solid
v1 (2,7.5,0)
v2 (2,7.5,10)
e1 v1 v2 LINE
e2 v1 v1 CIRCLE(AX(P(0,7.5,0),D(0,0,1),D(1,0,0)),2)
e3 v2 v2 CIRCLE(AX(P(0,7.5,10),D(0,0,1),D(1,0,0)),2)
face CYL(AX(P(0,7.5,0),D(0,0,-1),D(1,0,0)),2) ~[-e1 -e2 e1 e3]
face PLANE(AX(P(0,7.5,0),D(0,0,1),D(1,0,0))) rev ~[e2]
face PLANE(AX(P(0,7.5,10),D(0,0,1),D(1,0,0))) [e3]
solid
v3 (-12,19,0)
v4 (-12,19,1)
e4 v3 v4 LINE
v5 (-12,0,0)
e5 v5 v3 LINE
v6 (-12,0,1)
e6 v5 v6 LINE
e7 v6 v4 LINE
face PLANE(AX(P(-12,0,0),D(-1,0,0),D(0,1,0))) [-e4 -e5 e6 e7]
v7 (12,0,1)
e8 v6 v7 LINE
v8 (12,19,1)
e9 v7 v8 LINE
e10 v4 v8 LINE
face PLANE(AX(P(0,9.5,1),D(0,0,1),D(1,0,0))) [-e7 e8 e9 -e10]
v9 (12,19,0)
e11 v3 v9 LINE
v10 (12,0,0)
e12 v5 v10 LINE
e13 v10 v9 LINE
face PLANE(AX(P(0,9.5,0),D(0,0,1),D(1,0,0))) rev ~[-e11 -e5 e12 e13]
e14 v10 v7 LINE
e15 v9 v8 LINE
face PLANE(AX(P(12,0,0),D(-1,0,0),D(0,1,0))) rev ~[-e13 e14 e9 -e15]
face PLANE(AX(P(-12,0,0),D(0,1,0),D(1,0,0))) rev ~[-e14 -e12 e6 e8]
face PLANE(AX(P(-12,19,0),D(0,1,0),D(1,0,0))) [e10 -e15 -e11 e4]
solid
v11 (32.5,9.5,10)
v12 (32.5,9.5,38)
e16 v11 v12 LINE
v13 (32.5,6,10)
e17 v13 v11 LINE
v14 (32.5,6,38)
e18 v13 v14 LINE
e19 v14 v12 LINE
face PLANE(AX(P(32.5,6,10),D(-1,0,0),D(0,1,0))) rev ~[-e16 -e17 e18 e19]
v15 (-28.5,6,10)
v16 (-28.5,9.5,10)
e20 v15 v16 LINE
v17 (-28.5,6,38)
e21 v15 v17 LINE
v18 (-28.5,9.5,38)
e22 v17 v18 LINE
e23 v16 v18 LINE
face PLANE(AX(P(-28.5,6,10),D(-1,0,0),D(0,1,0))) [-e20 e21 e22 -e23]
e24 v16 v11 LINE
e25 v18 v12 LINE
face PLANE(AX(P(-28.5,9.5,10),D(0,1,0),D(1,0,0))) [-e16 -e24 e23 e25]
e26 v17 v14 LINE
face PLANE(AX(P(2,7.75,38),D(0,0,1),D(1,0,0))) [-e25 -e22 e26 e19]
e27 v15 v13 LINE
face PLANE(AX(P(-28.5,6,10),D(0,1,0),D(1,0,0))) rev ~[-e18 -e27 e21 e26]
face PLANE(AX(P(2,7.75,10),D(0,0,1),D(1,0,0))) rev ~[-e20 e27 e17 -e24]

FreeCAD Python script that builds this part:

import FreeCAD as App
import Part
import Sketcher
from FreeCAD import Vector


def add_polygon(sketch, points):
    """Adds a closed chain of lines whose ends are joined by coincident constraints."""
    first, n = sketch.GeometryCount, len(points)
    for a, b in zip(points, points[1:] + points[:1]):
        sketch.addGeometry(Part.LineSegment(App.Vector(*a, 0), App.Vector(*b, 0)), False)
    for i in range(n):
        sketch.addConstraint(Sketcher.Constraint("Coincident", first + i, 2, first + (i + 1) % n, 1))

doc = App.newDocument("Part")
body = doc.addObject("PartDesign::Body", "Body")

# Sketch on XY plane
sketch1 = body.newObject("Sketcher::SketchObject", "Sketch")
sketch1.AttachmentSupport = (doc.getObject("XY_Plane"), [""])
sketch1.MapMode = "FlatFace"
sketch1.AttachmentOffset = App.Placement(Vector(0, 0, 10), App.Rotation())
add_polygon(sketch1, [(-28.5, 9.5), (-28.5, 6), (32.5, 6), (32.5, 9.5)])  # lines 0-3
sketch1.addConstraint([
    Sketcher.Constraint("Vertical", 0),
    Sketcher.Constraint("Horizontal", 1),
    Sketcher.Constraint("Vertical", 2),
    Sketcher.Constraint("Horizontal", 3),
    Sketcher.Constraint("DistanceX", 1, 1, 1, 2, 61.0),
    Sketcher.Constraint("DistanceY", 0, 2, 0, 1, 3.5),
    Sketcher.Constraint("DistanceY", -1, 1, 0, 2, 6.0),
    Sketcher.Constraint("DistanceX", 0, 2, -1, 1, 28.5),
])
pad1 = body.newObject("PartDesign::Pad", "Pad")
pad1.Profile = sketch1
pad1.Length = 28
body2 = doc.addObject("PartDesign::Body", "Body001")

# Sketch on XY plane
sketch2 = body2.newObject("Sketcher::SketchObject", "Sketch001")
sketch2.AttachmentSupport = (doc.getObject("XY_Plane001"), [""])
sketch2.MapMode = "FlatFace"
add_polygon(sketch2, [(-12, 19), (-12, 0), (12, 0), (12, 19)])  # lines 0-3
sketch2.addConstraint([
    Sketcher.Constraint("Vertical", 0),
    Sketcher.Constraint("Horizontal", 1),
    Sketcher.Constraint("Vertical", 2),
    Sketcher.Constraint("Horizontal", 3),
    Sketcher.Constraint("Symmetric", 0, 2, 1, 2, -1, 1),
    Sketcher.Constraint("DistanceX", 1, 1, 1, 2, 24.0),
    Sketcher.Constraint("DistanceY", 0, 2, 0, 1, 19.0),
])
pad2 = body2.newObject("PartDesign::Pad", "Pad001")
pad2.Profile = sketch2
pad2.Length = 1
body3 = doc.addObject("PartDesign::Body", "Body002")

# Sketch on XY plane
sketch3 = body3.newObject("Sketcher::SketchObject", "Sketch002")
sketch3.AttachmentSupport = (doc.getObject("XY_Plane002"), [""])
sketch3.MapMode = "FlatFace"
sketch3.addGeometry(Part.Circle(Vector(0, 7.5, 0), Vector(0, 0, 1), 2), False)
sketch3.addConstraint([
    Sketcher.Constraint("PointOnObject", 0, 3, -2),
    Sketcher.Constraint("Diameter", 0, 4.0),
    Sketcher.Constraint("DistanceY", -1, 1, 0, 3, 7.5),
])
pad3 = body3.newObject("PartDesign::Pad", "Pad002")
pad3.Profile = sketch3
pad3.Length = 10

doc.recompute()
